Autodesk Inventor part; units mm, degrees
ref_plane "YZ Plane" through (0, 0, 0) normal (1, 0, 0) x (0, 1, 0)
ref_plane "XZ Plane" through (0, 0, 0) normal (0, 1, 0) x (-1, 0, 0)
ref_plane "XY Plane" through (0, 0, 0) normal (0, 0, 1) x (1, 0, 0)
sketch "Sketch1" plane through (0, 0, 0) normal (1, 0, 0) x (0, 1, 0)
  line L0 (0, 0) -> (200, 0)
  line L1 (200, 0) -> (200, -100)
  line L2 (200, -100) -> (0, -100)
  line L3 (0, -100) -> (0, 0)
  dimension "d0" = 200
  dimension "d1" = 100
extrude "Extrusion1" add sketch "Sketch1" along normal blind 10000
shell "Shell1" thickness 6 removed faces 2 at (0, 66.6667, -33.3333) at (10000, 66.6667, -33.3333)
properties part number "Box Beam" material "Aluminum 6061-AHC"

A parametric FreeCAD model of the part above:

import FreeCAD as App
import Part
import Sketcher

V = App.Vector
Q = App.Units.Quantity


def faces_at(feature, points):
    """Names of the faces that lie closest to the given points."""
    faces = feature.Shape.Faces
    near = lambda p: min(range(len(faces)), key=lambda i: faces[i].distToShape(Part.Vertex(*p))[0])
    return sorted({f"Face{near(p) + 1}" for p in points})


def add_polygon(sketch, points):
    """Adds a closed chain of lines whose ends are joined by coincident constraints."""
    first, n = sketch.GeometryCount, len(points)
    for a, b in zip(points, points[1:] + points[:1]):
        sketch.addGeometry(Part.LineSegment(App.Vector(*a, 0), App.Vector(*b, 0)), False)
    for i in range(n):
        sketch.addConstraint(Sketcher.Constraint("Coincident", first + i, 2, first + (i + 1) % n, 1))

doc = App.newDocument("Part")
body = doc.addObject("PartDesign::Body", "Body")

# Sketch on YZ plane
sketch1 = body.newObject("Sketcher::SketchObject", "Sketch")
sketch1.AttachmentSupport = (doc.getObject("YZ_Plane"), [""])
sketch1.MapMode = "FlatFace"
add_polygon(sketch1, [(200, 0), (0, 0), (0, -100), (200, -100)])  # lines 0-3
sketch1.addConstraint([
    Sketcher.Constraint("Horizontal", 0),
    Sketcher.Constraint("Vertical", 1),
    Sketcher.Constraint("Horizontal", 2),
    Sketcher.Constraint("Vertical", 3),
    Sketcher.Constraint("Coincident", 0, 2, -1, 1),
    Sketcher.Constraint("DistanceX", 0, 2, 0, 1, Q("200 mm")),
    Sketcher.Constraint("DistanceY", 1, 2, 1, 1, Q("100 mm")),
])
pad1 = body.newObject("PartDesign::Pad", "Pad")
pad1.Profile = sketch1
pad1.Length = 10000
doc.recompute()

thickness = body.newObject("PartDesign::Thickness", "Thickness")
thickness.Base = (pad1, faces_at(pad1, [(0, 66.667, -33.333), (10000, 66.667, -33.333)]))
thickness.Value = 6
thickness.Reversed = True
thickness.Join = "Intersection"

doc.recompute()
